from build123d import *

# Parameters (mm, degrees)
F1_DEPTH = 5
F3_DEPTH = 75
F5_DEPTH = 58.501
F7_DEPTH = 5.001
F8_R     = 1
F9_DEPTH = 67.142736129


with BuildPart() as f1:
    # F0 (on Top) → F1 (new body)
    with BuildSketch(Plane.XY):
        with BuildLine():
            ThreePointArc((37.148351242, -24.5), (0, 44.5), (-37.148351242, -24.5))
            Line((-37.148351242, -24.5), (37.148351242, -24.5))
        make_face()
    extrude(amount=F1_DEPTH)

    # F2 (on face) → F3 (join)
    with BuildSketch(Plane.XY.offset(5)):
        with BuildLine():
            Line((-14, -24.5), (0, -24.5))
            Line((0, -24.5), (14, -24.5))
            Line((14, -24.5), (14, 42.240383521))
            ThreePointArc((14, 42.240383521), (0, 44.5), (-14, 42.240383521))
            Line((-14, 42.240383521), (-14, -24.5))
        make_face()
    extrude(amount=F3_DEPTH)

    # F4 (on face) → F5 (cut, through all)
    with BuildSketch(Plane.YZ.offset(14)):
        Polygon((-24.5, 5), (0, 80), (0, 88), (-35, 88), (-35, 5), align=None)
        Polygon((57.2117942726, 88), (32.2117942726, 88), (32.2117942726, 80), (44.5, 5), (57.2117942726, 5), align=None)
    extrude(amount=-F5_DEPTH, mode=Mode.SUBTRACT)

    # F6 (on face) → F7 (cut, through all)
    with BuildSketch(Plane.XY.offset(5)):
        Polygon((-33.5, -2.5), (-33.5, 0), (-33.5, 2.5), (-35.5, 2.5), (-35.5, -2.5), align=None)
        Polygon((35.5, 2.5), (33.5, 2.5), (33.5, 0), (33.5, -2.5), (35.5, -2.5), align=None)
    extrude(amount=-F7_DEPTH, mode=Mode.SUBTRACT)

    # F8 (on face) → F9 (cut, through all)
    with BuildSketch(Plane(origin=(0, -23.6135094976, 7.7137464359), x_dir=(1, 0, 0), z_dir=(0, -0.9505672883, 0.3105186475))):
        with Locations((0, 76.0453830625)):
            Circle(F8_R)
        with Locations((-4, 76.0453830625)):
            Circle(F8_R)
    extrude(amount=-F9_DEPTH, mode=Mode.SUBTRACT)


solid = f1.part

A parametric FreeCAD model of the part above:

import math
import FreeCAD as App
import Part
import Sketcher

V = App.Vector


def add_polygon(sketch, points):
    """Adds a closed chain of lines whose ends are joined by coincident constraints."""
    first, n = sketch.GeometryCount, len(points)
    for a, b in zip(points, points[1:] + points[:1]):
        sketch.addGeometry(Part.LineSegment(App.Vector(*a, 0), App.Vector(*b, 0)), False)
    for i in range(n):
        sketch.addConstraint(Sketcher.Constraint("Coincident", first + i, 2, first + (i + 1) % n, 1))

doc = App.newDocument("Part")
body = doc.addObject("PartDesign::Body", "Body")

sketch1 = body.newObject("Sketcher::SketchObject", "Sketch")
sketch1.AttachmentSupport = (doc.getObject("XY_Plane"), [""])
sketch1.MapMode = "FlatFace"
sketch1.addGeometry(Part.ArcOfCircle(Part.Circle(V(0, 0, 0), V(0, 0, 1), 44), math.radians(-33), math.radians(213)), False)
sketch1.addGeometry(Part.LineSegment(V(-37, -24, 0), V(37, -24, 0)), False)
sketch1.addConstraint(Sketcher.Constraint("Coincident", 0, 1, 1, 2))
sketch1.addConstraint(Sketcher.Constraint("Coincident", 1, 1, 0, 2))
sketch1.addConstraint(Sketcher.Constraint("Horizontal", 1))
sketch1.addConstraint(Sketcher.Constraint("Coincident", 0, 3, -1, 1))
sketch1.addConstraint(Sketcher.Constraint("Radius", 0, 44.5))
sketch1.addConstraint(Sketcher.Constraint("DistanceY", 0, 1, -1, 1, 24.5))
pad1 = body.newObject("PartDesign::Pad", "Pad")
pad1.Profile = sketch1
pad1.Length = 5

sketch2 = body.newObject("Sketcher::SketchObject", "Sketch001")
sketch2.AttachmentSupport = (doc.getObject("XY_Plane"), [""])
sketch2.MapMode = "FlatFace"
sketch2.AttachmentOffset = App.Placement(V(0, 0, 5), App.Rotation())
sketch2.addGeometry(Part.LineSegment(V(-14, -24, 0), V(14, -24, 0)), False)
sketch2.addGeometry(Part.LineSegment(V(14, -24, 0), V(14, 42, 0)), False)
sketch2.addGeometry(Part.ArcOfCircle(Part.Circle(V(0, 0, 0), V(0, 0, 1), 44), math.radians(72), math.radians(108)), False)
sketch2.addGeometry(Part.LineSegment(V(-14, 42, 0), V(-14, -24, 0)), False)
sketch2.addConstraint(Sketcher.Constraint("Coincident", 0, 2, 1, 1))
sketch2.addConstraint(Sketcher.Constraint("Coincident", 1, 2, 2, 1))
sketch2.addConstraint(Sketcher.Constraint("Coincident", 2, 2, 3, 1))
sketch2.addConstraint(Sketcher.Constraint("Coincident", 3, 2, 0, 1))
sketch2.addConstraint(Sketcher.Constraint("Horizontal", 0))
sketch2.addConstraint(Sketcher.Constraint("Vertical", 1))
sketch2.addConstraint(Sketcher.Constraint("Vertical", 3))
sketch2.addConstraint(Sketcher.Constraint("Coincident", 2, 3, -1, 1))
sketch2.addConstraint(Sketcher.Constraint("Horizontal", 1, 2, 2, 2))
sketch2.addConstraint(Sketcher.Constraint("Radius", 2, 44.5))
sketch2.addConstraint(Sketcher.Constraint("DistanceX", 0, 1, 0, 2, 28.0))
sketch2.addConstraint(Sketcher.Constraint("DistanceY", 0, 2, -1, 1, 24.5))
pad2 = body.newObject("PartDesign::Pad", "Pad001")
pad2.Profile = sketch2
pad2.Length = 75

sketch3 = body.newObject("Sketcher::SketchObject", "Sketch002")
sketch3.AttachmentSupport = (doc.getObject("YZ_Plane"), [""])
sketch3.MapMode = "FlatFace"
sketch3.AttachmentOffset = App.Placement(V(0, 0, 14), App.Rotation())
add_polygon(sketch3, [(-24, 5), (0, 80), (0, 88), (-35, 88), (-35, 5)])
add_polygon(sketch3, [(57, 88), (32, 88), (32, 80), (44, 5), (57, 5)])
sketch3.addConstraint(Sketcher.Constraint("Vertical", 1))
sketch3.addConstraint(Sketcher.Constraint("Horizontal", 2))
sketch3.addConstraint(Sketcher.Constraint("Vertical", 3))
sketch3.addConstraint(Sketcher.Constraint("Horizontal", 4))
sketch3.addConstraint(Sketcher.Constraint("Horizontal", 5))
sketch3.addConstraint(Sketcher.Constraint("Vertical", 6))
sketch3.addConstraint(Sketcher.Constraint("Horizontal", 8))
sketch3.addConstraint(Sketcher.Constraint("Vertical", 9))
sketch3.addConstraint(Sketcher.Constraint("PointOnObject", 0, 2, -2))
sketch3.addConstraint(Sketcher.Constraint("Horizontal", 2, 2, 5, 2))
sketch3.addConstraint(Sketcher.Constraint("Horizontal", 0, 2, 6, 2))
sketch3.addConstraint(Sketcher.Constraint("Horizontal", 4, 2, 7, 2))
sketch3.addConstraint(Sketcher.Constraint("DistanceX", 2, 2, 2, 1, 35.0))
sketch3.addConstraint(Sketcher.Constraint("DistanceX", 5, 2, 5, 1, 25.0))
sketch3.addConstraint(Sketcher.Constraint("DistanceY", 1, 1, 1, 2, 8.0))
sketch3.addConstraint(Sketcher.Constraint("DistanceY", 3, 2, 3, 1, 83.0))
sketch3.addConstraint(Sketcher.Constraint("Distance", 7, 76.0))
sketch3.addConstraint(Sketcher.Constraint("DistanceX", 4, 1, 4, 2, 10.5))
sketch3.addConstraint(Sketcher.Constraint("DistanceY", -1, 1, 0, 2, 80.0))
sketch3.addConstraint(Sketcher.Constraint("DistanceX", 4, 2, 7, 2, 69.0))
pocket1 = body.newObject("PartDesign::Pocket", "Pocket")
pocket1.Profile = sketch3
pocket1.Type = "ThroughAll"

sketch4 = body.newObject("Sketcher::SketchObject", "Sketch003")
sketch4.AttachmentSupport = (doc.getObject("XY_Plane"), [""])
sketch4.MapMode = "FlatFace"
sketch4.AttachmentOffset = App.Placement(V(0, 0, 5), App.Rotation())
add_polygon(sketch4, [(-33.5, -2.5), (-33.5, 2.5), (-35.5, 2.5), (-35.5, -2.5)])
add_polygon(sketch4, [(35.5, 2.5), (33.5, 2.5), (33.5, -2.5), (35.5, -2.5)])
sketch4.addConstraint(Sketcher.Constraint("Vertical", 0))
sketch4.addConstraint(Sketcher.Constraint("Horizontal", 1))
sketch4.addConstraint(Sketcher.Constraint("Vertical", 2))
sketch4.addConstraint(Sketcher.Constraint("Horizontal", 3))
sketch4.addConstraint(Sketcher.Constraint("Horizontal", 4))
sketch4.addConstraint(Sketcher.Constraint("Vertical", 5))
sketch4.addConstraint(Sketcher.Constraint("Horizontal", 6))
sketch4.addConstraint(Sketcher.Constraint("Vertical", 7))
sketch4.addConstraint(Sketcher.Constraint("Symmetric", 3, 2, 4, 2, -1, 1))
sketch4.addConstraint(Sketcher.Constraint("Symmetric", 1, 2, 6, 2, -1, 1))
sketch4.addConstraint(Sketcher.Constraint("Horizontal", 1, 2, 4, 2))
sketch4.addConstraint(Sketcher.Constraint("DistanceX", 1, 2, 1, 1, 2.0))
sketch4.addConstraint(Sketcher.Constraint("DistanceY", 0, 1, 0, 2, 5.0))
sketch4.addConstraint(Sketcher.Constraint("DistanceX", 0, 2, 4, 2, 67.0))
pocket2 = body.newObject("PartDesign::Pocket", "Pocket001")
pocket2.Profile = sketch4
pocket2.Type = "ThroughAll"

sketch5 = body.newObject("Sketcher::SketchObject", "Sketch004")
sketch5.Placement = App.Placement(V(0, -23.613509, 7.713746), App.Rotation(V(1, 0, 0), V(0, 0.310518647, 0.950567288), V(0, -0.950567288, 0.310518647), "ZXY"))
sketch5.addGeometry(Part.Circle(V(0, 76, 0), V(0, 0, 1), 1), False)
sketch5.addGeometry(Part.Circle(V(-4, 76, 0), V(0, 0, 1), 1), False)
sketch5.addConstraint(Sketcher.Constraint("Equal", 0, 1))
sketch5.addConstraint(Sketcher.Constraint("PointOnObject", 0, 3, -2))
sketch5.addConstraint(Sketcher.Constraint("Horizontal", 0, 3, 1, 3))
sketch5.addConstraint(Sketcher.Constraint("Diameter", 0, 2.0))
sketch5.addConstraint(Sketcher.Constraint("DistanceX", 1, 3, -1, 1, 4.0))
sketch5.addConstraint(Sketcher.Constraint("DistanceY", -1, 1, 0, 3, 76.045383))
pocket3 = body.newObject("PartDesign::Pocket", "Pocket002")
pocket3.Profile = sketch5
pocket3.Type = "ThroughAll"

doc.recompute()
